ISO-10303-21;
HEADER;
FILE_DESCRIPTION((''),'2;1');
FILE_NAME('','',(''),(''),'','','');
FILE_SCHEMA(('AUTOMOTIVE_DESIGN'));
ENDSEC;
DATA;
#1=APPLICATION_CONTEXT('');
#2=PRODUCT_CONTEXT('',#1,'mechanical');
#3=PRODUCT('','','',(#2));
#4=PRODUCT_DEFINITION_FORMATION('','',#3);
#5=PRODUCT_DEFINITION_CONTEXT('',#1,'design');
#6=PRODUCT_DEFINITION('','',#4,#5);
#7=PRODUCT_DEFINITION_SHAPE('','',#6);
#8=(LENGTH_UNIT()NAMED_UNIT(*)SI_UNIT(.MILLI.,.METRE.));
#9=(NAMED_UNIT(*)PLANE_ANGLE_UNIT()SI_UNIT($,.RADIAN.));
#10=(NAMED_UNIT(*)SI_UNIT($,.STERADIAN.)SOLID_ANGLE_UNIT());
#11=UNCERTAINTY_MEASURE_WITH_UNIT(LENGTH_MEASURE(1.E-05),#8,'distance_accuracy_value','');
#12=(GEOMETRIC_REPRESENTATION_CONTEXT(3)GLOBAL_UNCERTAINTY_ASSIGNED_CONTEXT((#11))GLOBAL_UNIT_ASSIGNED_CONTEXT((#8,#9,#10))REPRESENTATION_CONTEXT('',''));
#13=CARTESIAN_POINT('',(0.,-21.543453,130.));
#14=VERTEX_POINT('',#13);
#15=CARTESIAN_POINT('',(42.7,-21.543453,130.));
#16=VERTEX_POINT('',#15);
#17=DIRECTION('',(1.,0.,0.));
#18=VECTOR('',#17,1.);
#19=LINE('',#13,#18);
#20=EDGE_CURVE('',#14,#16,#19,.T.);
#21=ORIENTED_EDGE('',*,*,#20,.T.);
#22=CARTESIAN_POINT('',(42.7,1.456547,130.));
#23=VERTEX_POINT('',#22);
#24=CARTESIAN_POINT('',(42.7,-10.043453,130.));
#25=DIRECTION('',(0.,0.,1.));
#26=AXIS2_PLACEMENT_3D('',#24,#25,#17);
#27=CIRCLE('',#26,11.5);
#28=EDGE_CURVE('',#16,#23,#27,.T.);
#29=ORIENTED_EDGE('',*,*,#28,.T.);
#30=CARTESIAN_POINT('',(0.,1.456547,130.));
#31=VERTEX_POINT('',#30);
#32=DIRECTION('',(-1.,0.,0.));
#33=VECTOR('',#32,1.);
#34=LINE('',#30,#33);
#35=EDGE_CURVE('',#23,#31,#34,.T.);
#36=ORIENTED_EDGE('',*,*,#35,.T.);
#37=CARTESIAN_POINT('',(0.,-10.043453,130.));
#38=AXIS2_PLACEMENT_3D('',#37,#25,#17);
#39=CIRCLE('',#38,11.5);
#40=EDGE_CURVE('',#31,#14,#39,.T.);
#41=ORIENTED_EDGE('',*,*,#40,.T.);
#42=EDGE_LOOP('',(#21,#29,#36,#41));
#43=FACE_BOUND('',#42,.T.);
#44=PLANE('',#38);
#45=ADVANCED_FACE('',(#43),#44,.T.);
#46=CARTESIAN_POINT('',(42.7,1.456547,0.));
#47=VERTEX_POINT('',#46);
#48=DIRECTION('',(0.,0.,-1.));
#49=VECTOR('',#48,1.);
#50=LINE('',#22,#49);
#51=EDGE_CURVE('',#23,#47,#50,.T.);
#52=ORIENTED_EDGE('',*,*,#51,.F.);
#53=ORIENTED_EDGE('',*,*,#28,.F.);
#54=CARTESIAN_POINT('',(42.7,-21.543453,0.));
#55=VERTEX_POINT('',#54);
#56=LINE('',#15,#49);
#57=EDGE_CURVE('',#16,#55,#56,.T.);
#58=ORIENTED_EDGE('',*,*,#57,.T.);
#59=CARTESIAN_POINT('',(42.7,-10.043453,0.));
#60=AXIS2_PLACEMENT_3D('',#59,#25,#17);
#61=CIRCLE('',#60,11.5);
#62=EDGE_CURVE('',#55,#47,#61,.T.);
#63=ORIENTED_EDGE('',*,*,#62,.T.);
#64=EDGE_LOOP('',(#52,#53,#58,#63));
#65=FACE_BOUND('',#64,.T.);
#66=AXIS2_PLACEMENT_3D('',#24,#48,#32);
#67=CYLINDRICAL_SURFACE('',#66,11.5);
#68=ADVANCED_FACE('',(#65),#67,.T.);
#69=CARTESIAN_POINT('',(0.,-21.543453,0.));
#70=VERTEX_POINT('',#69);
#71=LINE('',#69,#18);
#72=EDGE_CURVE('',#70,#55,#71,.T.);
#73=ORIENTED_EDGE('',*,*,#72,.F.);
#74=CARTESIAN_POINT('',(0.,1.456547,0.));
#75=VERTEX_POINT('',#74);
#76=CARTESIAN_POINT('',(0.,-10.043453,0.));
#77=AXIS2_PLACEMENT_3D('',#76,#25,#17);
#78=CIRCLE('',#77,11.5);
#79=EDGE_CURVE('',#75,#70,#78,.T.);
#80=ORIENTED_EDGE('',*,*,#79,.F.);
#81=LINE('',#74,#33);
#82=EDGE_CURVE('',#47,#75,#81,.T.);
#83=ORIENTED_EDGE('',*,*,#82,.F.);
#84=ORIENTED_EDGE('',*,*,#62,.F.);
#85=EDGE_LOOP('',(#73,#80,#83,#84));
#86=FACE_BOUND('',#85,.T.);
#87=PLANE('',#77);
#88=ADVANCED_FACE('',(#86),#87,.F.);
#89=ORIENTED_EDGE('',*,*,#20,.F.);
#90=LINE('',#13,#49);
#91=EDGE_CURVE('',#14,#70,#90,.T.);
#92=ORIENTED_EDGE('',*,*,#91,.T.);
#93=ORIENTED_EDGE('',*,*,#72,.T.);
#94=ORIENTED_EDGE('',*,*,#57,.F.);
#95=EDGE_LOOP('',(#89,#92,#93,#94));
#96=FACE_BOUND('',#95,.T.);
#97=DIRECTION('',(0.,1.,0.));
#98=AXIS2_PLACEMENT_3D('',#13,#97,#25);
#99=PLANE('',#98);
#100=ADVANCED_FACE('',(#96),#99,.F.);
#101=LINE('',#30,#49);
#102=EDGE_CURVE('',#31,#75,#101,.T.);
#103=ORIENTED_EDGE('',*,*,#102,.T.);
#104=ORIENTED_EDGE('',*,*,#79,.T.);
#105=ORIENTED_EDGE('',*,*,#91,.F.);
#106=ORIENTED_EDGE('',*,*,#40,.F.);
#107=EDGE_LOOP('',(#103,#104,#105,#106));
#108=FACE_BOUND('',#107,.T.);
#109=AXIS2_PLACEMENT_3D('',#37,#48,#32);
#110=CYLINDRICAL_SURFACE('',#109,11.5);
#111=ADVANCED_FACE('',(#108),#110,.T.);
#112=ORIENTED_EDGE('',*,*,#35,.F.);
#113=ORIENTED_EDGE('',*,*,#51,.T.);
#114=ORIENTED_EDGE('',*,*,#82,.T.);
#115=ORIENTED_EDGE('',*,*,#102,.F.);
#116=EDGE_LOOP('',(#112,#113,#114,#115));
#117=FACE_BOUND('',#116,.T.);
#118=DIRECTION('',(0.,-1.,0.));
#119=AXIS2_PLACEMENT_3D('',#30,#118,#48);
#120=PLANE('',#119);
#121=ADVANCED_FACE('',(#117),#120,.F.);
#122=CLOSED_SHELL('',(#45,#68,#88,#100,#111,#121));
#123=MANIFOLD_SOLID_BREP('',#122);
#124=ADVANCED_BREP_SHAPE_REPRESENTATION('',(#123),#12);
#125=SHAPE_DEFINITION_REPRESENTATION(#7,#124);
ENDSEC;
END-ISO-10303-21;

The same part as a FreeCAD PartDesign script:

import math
import FreeCAD as App
import Part
import Sketcher
from FreeCAD import Vector
Q = App.Units.Quantity

doc = App.newDocument("Part")
body = doc.addObject("PartDesign::Body", "Body")

# Sketch on XY plane
sketch1 = doc.addObject("Sketcher::SketchObject", "Sketch")
body.addObject(sketch1)
sketch1.AttachmentSupport = (doc.XY_Plane, [""])
sketch1.MapMode = "FlatFace"
sketch1.addGeometry([
    Part.LineSegment(Vector(43, 1, 0), Vector(0, 1, 0)),
    Part.ArcOfCircle(Part.Circle(Vector(0, -10, 0), Vector(0, 0, 1), 12), math.radians(90), math.radians(270)),
    Part.LineSegment(Vector(0, -22, 0), Vector(43, -22, 0)),
    Part.ArcOfCircle(Part.Circle(Vector(43, -10, 0), Vector(0, 0, 1), 12), math.radians(-90), math.radians(90)),
], False)
sketch1.addConstraint([
    Sketcher.Constraint("Tangent", 0, 2, 1, 1),
    Sketcher.Constraint("Tangent", 1, 2, 2, 1),
    Sketcher.Constraint("Tangent", 2, 2, 3, 1),
    Sketcher.Constraint("Tangent", 3, 2, 0, 1),
    Sketcher.Constraint("Horizontal", 0),
    Sketcher.Constraint("Horizontal", 2),
    Sketcher.Constraint("PointOnObject", 1, 3, -2),
    Sketcher.Constraint("Radius", 1, Q("11.5 mm")),
    Sketcher.Constraint("DistanceX", 0, 2, 0, 1, Q("42.7 mm")),
    Sketcher.Constraint("DistanceY", 1, 3, -1, 1, Q("10.043453 mm")),
])
pad1 = doc.addObject("PartDesign::Pad", "Pad")
body.addObject(pad1)
pad1.Profile = sketch1
pad1.Length = 130

doc.recompute()
